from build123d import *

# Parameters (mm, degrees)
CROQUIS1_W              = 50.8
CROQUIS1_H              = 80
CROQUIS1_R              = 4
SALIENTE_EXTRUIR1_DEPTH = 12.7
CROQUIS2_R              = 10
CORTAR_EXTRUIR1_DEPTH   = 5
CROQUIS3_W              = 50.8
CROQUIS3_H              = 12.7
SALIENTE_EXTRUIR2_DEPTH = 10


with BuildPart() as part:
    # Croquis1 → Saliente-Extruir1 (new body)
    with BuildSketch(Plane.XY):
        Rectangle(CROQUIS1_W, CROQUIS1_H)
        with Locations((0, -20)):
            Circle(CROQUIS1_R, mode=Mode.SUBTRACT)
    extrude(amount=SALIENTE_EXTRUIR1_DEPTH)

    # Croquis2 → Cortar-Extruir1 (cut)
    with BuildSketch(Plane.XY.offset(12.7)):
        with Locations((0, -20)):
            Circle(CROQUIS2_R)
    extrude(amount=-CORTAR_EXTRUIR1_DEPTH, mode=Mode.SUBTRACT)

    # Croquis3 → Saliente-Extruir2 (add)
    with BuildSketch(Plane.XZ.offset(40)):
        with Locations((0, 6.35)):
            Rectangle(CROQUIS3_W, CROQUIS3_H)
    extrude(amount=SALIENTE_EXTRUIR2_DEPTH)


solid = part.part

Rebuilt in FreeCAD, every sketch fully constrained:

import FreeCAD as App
import Part
import Sketcher
Q = App.Units.Quantity

doc = App.newDocument("Part")
params = doc.addObject("Spreadsheet::Sheet", "Params")
for row, (alias, value) in enumerate([
    ("sketch1_diameter", "8 mm"),
    ("sketch1_height", "80 mm"),
    ("sketch1_width", "50.8 mm"),
    ("pad1_length", "12.7 mm"),
    ("sketch2_diameter", "20 mm"),
    ("pocket1_length", "5 mm"),
    ("sketch3_width", "50.8 mm"),
    ("sketch3_height", "12.7 mm"),
    ("pad2_length", "10 mm"),
], start=1):
    params.set(f"A{row}", alias)
    params.set(f"B{row}", "=" + value)
    params.setAlias(f"B{row}", alias)

body = doc.addObject("PartDesign::Body", "Body")

sketch1 = body.newObject("Sketcher::SketchObject", "Sketch")
sketch1.AttachmentSupport = (doc.getObject("XY_Plane"), [""])
sketch1.MapMode = "FlatFace"
sketch1.addGeometry(Part.LineSegment(App.Vector(-25.4, 40, 0), App.Vector(-25.4, -40, 0)), False)
sketch1.addGeometry(Part.LineSegment(App.Vector(-25.4, -40, 0), App.Vector(25.4, -40, 0)), False)
sketch1.addGeometry(Part.LineSegment(App.Vector(25.4, -40, 0), App.Vector(25.4, 40, 0)), False)
sketch1.addGeometry(Part.LineSegment(App.Vector(25.4, 40, 0), App.Vector(-25.4, 40, 0)), False)
sketch1.addGeometry(Part.Circle(App.Vector(0, -20, 0), App.Vector(0, 0, 1), 4), False)
sketch1.addConstraint(Sketcher.Constraint("Coincident", 0, 2, 1, 1))
sketch1.addConstraint(Sketcher.Constraint("Coincident", 1, 2, 2, 1))
sketch1.addConstraint(Sketcher.Constraint("Coincident", 2, 2, 3, 1))
sketch1.addConstraint(Sketcher.Constraint("Coincident", 3, 2, 0, 1))
sketch1.addConstraint(Sketcher.Constraint("Vertical", 0))
sketch1.addConstraint(Sketcher.Constraint("Horizontal", 1))
sketch1.addConstraint(Sketcher.Constraint("Vertical", 2))
sketch1.addConstraint(Sketcher.Constraint("Horizontal", 3))
sketch1.addConstraint(Sketcher.Constraint("Symmetric", 0, 2, 2, 2, -1, 1))
sketch1.addConstraint(Sketcher.Constraint("PointOnObject", 4, 3, -2))
sketch1.addConstraint(Sketcher.Constraint("Diameter", 4, Q("8 mm")))
sketch1.addConstraint(Sketcher.Constraint("DistanceY", 0, 2, 0, 1, Q("80 mm")))
sketch1.addConstraint(Sketcher.Constraint("DistanceX", 1, 1, 1, 2, Q("50.8 mm")))
sketch1.addConstraint(Sketcher.Constraint("DistanceY", 4, 3, -1, 1, Q("20 mm")))
sketch1.setExpression("Constraints[10]", "Params.sketch1_diameter")
sketch1.setExpression("Constraints[11]", "Params.sketch1_height")
sketch1.setExpression("Constraints[12]", "Params.sketch1_width")
pad1 = body.newObject("PartDesign::Pad", "Pad")
pad1.Profile = sketch1
pad1.setExpression("Length", "Params.pad1_length")

sketch2 = body.newObject("Sketcher::SketchObject", "Sketch001")
sketch2.AttachmentSupport = (doc.getObject("XY_Plane"), [""])
sketch2.MapMode = "FlatFace"
sketch2.AttachmentOffset = App.Placement(App.Vector(0, 0, 12.7), App.Rotation())
sketch2.addGeometry(Part.Circle(App.Vector(0, -20, 0), App.Vector(0, 0, 1), 10), False)
sketch2.addConstraint(Sketcher.Constraint("PointOnObject", 0, 3, -2))
sketch2.addConstraint(Sketcher.Constraint("Diameter", 0, Q("20 mm")))
sketch2.addConstraint(Sketcher.Constraint("DistanceY", 0, 3, -1, 1, Q("20 mm")))
sketch2.setExpression("Constraints[1]", "Params.sketch2_diameter")
pocket1 = body.newObject("PartDesign::Pocket", "Pocket")
pocket1.Profile = sketch2
pocket1.setExpression("Length", "Params.pocket1_length")

sketch3 = body.newObject("Sketcher::SketchObject", "Sketch002")
sketch3.AttachmentSupport = (doc.getObject("XZ_Plane"), [""])
sketch3.MapMode = "FlatFace"
sketch3.AttachmentOffset = App.Placement(App.Vector(0, 0, 40), App.Rotation())
sketch3.addGeometry(Part.LineSegment(App.Vector(-25, 13, 0), App.Vector(-25, 0, 0)), False)
sketch3.addGeometry(Part.LineSegment(App.Vector(-25, 0, 0), App.Vector(25, 0, 0)), False)
sketch3.addGeometry(Part.LineSegment(App.Vector(25, 0, 0), App.Vector(25, 13, 0)), False)
sketch3.addGeometry(Part.LineSegment(App.Vector(25, 13, 0), App.Vector(-25, 13, 0)), False)
sketch3.addConstraint(Sketcher.Constraint("Coincident", 0, 2, 1, 1))
sketch3.addConstraint(Sketcher.Constraint("Coincident", 1, 2, 2, 1))
sketch3.addConstraint(Sketcher.Constraint("Coincident", 2, 2, 3, 1))
sketch3.addConstraint(Sketcher.Constraint("Coincident", 3, 2, 0, 1))
sketch3.addConstraint(Sketcher.Constraint("Vertical", 0))
sketch3.addConstraint(Sketcher.Constraint("Horizontal", 1))
sketch3.addConstraint(Sketcher.Constraint("Vertical", 2))
sketch3.addConstraint(Sketcher.Constraint("Horizontal", 3))
sketch3.addConstraint(Sketcher.Constraint("Symmetric", 0, 2, 1, 2, -1, 1))
sketch3.addConstraint(Sketcher.Constraint("DistanceX", 1, 1, 1, 2, Q("50.8 mm")))
sketch3.addConstraint(Sketcher.Constraint("DistanceY", 0, 2, 0, 1, Q("12.7 mm")))
sketch3.setExpression("Constraints[9]", "Params.sketch3_width")
sketch3.setExpression("Constraints[10]", "Params.sketch3_height")
pad2 = body.newObject("PartDesign::Pad", "Pad001")
pad2.Profile = sketch3
pad2.setExpression("Length", "Params.pad2_length")

doc.recompute()
